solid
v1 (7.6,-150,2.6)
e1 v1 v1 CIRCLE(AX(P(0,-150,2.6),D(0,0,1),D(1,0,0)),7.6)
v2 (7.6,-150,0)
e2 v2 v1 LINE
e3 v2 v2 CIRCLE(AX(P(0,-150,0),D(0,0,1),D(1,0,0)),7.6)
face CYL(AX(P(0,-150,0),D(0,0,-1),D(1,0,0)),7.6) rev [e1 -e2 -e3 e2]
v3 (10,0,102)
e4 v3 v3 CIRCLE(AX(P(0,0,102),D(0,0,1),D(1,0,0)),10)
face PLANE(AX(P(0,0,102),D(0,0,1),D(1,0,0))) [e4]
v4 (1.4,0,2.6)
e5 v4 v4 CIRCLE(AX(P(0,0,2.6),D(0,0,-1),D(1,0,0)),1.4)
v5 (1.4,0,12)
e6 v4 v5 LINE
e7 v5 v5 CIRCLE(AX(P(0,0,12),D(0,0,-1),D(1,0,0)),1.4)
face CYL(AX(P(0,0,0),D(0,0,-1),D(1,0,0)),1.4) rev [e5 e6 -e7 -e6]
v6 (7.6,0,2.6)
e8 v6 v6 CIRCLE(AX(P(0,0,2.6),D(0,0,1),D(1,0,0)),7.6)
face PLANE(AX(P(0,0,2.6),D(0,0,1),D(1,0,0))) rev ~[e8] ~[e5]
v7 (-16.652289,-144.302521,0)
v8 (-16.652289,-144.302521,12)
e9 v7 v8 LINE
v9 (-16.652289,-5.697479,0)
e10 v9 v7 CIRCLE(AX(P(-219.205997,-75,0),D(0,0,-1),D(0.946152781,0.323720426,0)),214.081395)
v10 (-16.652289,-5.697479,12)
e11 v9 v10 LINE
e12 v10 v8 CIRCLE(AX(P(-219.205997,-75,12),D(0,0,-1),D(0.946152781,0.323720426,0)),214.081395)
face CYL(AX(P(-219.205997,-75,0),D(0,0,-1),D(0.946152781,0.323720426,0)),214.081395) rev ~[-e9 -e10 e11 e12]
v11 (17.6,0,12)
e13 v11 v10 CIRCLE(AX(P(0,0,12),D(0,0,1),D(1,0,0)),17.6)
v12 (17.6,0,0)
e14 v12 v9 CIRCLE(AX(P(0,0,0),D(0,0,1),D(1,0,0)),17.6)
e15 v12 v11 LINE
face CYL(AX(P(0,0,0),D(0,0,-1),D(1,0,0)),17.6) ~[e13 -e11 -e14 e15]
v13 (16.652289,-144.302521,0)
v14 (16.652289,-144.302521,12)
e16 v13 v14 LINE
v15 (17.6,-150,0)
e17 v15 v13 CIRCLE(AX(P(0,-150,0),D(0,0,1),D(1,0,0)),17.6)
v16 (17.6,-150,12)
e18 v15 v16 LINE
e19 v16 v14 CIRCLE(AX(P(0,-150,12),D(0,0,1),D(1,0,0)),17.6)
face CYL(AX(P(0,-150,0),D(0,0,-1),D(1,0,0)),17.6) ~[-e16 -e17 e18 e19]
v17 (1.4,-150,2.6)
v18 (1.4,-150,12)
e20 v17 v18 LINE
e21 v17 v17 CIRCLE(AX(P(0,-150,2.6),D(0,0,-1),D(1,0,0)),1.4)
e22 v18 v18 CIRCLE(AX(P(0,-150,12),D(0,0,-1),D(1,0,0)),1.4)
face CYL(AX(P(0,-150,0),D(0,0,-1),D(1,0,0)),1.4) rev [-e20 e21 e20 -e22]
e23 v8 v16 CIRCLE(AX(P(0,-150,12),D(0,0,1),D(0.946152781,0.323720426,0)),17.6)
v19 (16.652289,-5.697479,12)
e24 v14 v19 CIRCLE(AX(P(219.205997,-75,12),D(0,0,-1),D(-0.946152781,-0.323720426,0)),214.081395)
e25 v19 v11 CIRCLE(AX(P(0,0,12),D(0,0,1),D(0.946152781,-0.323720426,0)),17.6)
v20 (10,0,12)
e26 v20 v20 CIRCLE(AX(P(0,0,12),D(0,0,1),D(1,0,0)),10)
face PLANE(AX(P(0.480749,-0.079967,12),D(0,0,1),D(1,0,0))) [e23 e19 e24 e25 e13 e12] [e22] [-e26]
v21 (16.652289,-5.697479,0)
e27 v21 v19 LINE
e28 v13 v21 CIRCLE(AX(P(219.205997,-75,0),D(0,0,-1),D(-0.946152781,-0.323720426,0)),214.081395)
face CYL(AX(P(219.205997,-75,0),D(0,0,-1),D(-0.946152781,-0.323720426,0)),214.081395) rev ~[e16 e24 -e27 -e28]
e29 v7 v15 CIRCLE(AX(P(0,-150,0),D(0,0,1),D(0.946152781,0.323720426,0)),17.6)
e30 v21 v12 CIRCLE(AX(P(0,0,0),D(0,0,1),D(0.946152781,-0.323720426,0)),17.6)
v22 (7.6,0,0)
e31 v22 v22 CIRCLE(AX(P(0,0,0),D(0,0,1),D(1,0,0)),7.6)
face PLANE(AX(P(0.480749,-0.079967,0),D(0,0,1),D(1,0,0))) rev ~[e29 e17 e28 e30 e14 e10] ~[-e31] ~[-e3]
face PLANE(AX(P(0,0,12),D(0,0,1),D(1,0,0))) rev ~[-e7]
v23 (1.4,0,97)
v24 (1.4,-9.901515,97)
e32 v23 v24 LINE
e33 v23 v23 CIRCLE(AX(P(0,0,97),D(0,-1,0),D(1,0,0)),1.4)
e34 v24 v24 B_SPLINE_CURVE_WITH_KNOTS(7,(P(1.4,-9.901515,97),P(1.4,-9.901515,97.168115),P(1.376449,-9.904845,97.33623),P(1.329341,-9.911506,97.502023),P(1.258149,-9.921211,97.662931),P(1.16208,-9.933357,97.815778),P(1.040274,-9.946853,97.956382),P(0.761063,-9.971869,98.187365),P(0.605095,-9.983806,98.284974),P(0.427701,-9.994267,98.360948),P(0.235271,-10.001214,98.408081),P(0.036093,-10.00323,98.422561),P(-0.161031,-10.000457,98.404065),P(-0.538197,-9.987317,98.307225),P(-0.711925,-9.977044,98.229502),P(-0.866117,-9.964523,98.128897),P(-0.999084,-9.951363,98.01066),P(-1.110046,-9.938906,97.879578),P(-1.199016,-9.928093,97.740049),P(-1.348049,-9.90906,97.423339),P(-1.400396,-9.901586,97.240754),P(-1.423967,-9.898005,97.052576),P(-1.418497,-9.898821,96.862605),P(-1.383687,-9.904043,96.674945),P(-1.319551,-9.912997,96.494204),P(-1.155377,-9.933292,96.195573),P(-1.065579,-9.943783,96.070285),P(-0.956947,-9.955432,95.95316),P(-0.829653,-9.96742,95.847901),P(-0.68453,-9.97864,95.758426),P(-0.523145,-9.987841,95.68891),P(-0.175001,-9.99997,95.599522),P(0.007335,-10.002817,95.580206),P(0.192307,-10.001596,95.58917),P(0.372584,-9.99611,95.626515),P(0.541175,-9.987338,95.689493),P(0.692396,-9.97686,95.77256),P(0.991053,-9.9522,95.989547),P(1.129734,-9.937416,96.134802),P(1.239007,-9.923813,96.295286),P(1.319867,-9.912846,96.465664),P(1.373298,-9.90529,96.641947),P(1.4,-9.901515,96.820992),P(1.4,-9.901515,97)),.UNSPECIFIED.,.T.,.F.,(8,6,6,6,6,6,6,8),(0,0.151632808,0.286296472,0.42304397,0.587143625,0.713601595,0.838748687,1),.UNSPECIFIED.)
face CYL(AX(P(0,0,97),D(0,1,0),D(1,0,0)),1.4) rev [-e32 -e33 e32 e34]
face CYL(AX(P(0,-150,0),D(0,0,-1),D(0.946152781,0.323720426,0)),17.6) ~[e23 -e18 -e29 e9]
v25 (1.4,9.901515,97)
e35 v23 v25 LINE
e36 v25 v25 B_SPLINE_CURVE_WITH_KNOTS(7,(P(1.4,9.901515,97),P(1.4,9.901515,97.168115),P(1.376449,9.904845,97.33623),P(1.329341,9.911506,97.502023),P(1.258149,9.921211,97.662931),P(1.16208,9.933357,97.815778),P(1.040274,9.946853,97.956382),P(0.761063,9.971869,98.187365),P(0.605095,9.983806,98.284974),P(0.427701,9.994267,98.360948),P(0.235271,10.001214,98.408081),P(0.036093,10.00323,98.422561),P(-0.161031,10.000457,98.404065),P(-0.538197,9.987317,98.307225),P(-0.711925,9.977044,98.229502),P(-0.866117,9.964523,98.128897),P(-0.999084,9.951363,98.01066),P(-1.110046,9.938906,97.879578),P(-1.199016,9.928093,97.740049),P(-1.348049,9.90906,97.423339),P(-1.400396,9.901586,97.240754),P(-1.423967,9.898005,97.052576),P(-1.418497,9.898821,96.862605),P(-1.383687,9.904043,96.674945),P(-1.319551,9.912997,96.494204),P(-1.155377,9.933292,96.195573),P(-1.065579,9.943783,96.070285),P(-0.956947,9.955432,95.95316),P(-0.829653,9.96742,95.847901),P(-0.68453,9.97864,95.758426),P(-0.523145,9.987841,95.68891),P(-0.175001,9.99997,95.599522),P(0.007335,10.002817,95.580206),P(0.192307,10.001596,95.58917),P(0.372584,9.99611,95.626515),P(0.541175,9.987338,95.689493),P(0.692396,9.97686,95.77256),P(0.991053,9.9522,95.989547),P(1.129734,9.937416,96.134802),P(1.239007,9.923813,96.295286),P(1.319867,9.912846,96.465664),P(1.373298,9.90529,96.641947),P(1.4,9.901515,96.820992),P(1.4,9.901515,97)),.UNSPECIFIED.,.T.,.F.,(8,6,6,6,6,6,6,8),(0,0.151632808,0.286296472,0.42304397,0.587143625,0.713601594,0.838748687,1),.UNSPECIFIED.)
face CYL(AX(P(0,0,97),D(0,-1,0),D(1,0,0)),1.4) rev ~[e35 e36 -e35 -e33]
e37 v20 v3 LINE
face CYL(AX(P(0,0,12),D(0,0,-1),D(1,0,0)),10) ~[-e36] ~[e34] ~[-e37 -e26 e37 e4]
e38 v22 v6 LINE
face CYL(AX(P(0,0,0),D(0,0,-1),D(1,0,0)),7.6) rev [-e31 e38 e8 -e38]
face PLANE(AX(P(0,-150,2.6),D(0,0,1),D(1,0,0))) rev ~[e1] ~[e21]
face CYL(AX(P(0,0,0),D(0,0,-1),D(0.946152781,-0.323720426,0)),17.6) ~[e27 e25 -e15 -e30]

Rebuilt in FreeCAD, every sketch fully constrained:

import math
import FreeCAD as App
import Part
import Sketcher
from FreeCAD import Vector
Q = App.Units.Quantity

doc = App.newDocument("Part")
params = doc.addObject("Spreadsheet::Sheet", "Params")
for row, (alias, value) in enumerate([
    ("sketch1_radius", "17.6 mm"),
    ("pad1_length", "12 mm"),
    ("sketch2_diameter", "15.2 mm"),
    ("pocket1_length", "2.6 mm"),
    ("sketch3_diameter", "2.8 mm"),
    ("sketch4_diameter", "20 mm"),
    ("pad2_length", "90 mm"),
    ("sketch5_diameter", "2.8 mm"),
], start=1):
    params.set(f"A{row}", alias)
    params.set(f"B{row}", "=" + value)
    params.setAlias(f"B{row}", alias)

body = doc.addObject("PartDesign::Body", "Body")

sketch1 = doc.addObject("Sketcher::SketchObject", "Sketch")
body.addObject(sketch1)
sketch1.AttachmentSupport = (doc.XY_Plane, [""])
sketch1.MapMode = "FlatFace"
sketch1.addGeometry(Part.ArcOfCircle(Part.Circle(Vector(0, 0, 0), Vector(0, 0, 1), 17.6), math.radians(-18.88807), math.radians(0)), False)
sketch1.addGeometry(Part.ArcOfCircle(Part.Circle(Vector(0, 0, 0), Vector(0, 0, 1), 17.6), math.radians(0), math.radians(198.88807)), False)
sketch1.addGeometry(Part.ArcOfCircle(Part.Circle(Vector(-219.205997, -75, 0), Vector(0, 0, 1), 214.081395), math.radians(-18.88807), math.radians(18.88807)), False)
sketch1.addGeometry(Part.ArcOfCircle(Part.Circle(Vector(0, -150, 0), Vector(0, 0, 1), 17.6), math.radians(161.11193), math.radians(360)), False)
sketch1.addGeometry(Part.ArcOfCircle(Part.Circle(Vector(0, -150, 0), Vector(0, 0, 1), 17.6), math.radians(0), math.radians(18.88807)), False)
sketch1.addGeometry(Part.ArcOfCircle(Part.Circle(Vector(219.205997, -75, 0), Vector(0, 0, 1), 214.081395), math.radians(161.11193), math.radians(198.88807)), False)
sketch1.addConstraint(Sketcher.Constraint("Tangent", 0, 2, 1, 1))
sketch1.addConstraint(Sketcher.Constraint("Tangent", 1, 2, 2, 2))
sketch1.addConstraint(Sketcher.Constraint("Tangent", 2, 1, 3, 1))
sketch1.addConstraint(Sketcher.Constraint("Tangent", 3, 2, 4, 1))
sketch1.addConstraint(Sketcher.Constraint("Tangent", 4, 2, 5, 2))
sketch1.addConstraint(Sketcher.Constraint("Tangent", 5, 1, 0, 1))
sketch1.addConstraint(Sketcher.Constraint("Coincident", 0, 3, -1, 1))
sketch1.addConstraint(Sketcher.Constraint("Equal", 0, 1))
sketch1.addConstraint(Sketcher.Constraint("Equal", 1, 3))
sketch1.addConstraint(Sketcher.Constraint("Equal", 3, 4))
sketch1.addConstraint(Sketcher.Constraint("Equal", 2, 5))
sketch1.addConstraint(Sketcher.Constraint("PointOnObject", 3, 3, -2))
sketch1.addConstraint(Sketcher.Constraint("PointOnObject", 0, 2, -1))
sketch1.addConstraint(Sketcher.Constraint("Horizontal", 4, 3, 3, 2))
sketch1.addConstraint(Sketcher.Constraint("Radius", 0, Q("17.6 mm")))
sketch1.addConstraint(Sketcher.Constraint("DistanceY", 2, 3, -1, 1, Q("75 mm")))
sketch1.addConstraint(Sketcher.Constraint("Radius", 2, Q("214.081395 mm")))
sketch1.setExpression("Constraints[14]", "Params.sketch1_radius")
pad1 = doc.addObject("PartDesign::Pad", "Pad")
body.addObject(pad1)
pad1.Profile = sketch1
pad1.setExpression("Length", "Params.pad1_length")

sketch2 = doc.addObject("Sketcher::SketchObject", "Sketch001")
body.addObject(sketch2)
sketch2.AttachmentSupport = (doc.XY_Plane, [""])
sketch2.MapMode = "FlatFace"
sketch2.addGeometry(Part.Circle(Vector(0, 0, 0), Vector(0, 0, 1), 7.6), False)
sketch2.addGeometry(Part.Circle(Vector(0, -150, 0), Vector(0, 0, 1), 7.6), False)
sketch2.addConstraint(Sketcher.Constraint("Coincident", 0, 3, -1, 1))
sketch2.addConstraint(Sketcher.Constraint("Equal", 0, 1))
sketch2.addConstraint(Sketcher.Constraint("PointOnObject", 1, 3, -2))
sketch2.addConstraint(Sketcher.Constraint("Diameter", 0, Q("15.2 mm")))
sketch2.addConstraint(Sketcher.Constraint("DistanceY", 1, 3, -1, 1, Q("150 mm")))
sketch2.setExpression("Constraints[3]", "Params.sketch2_diameter")
pocket1 = doc.addObject("PartDesign::Pocket", "Pocket")
body.addObject(pocket1)
pocket1.Profile = sketch2
pocket1.setExpression("Length", "Params.pocket1_length")
pocket1.Reversed = True

sketch3 = doc.addObject("Sketcher::SketchObject", "Sketch002")
body.addObject(sketch3)
sketch3.AttachmentSupport = (doc.XY_Plane, [""])
sketch3.MapMode = "FlatFace"
sketch3.addGeometry(Part.Circle(Vector(0, -150, 0), Vector(0, 0, 1), 1.4), False)
sketch3.addGeometry(Part.Circle(Vector(0, 0, 0), Vector(0, 0, 1), 1.4), False)
sketch3.addConstraint(Sketcher.Constraint("Coincident", 1, 3, -1, 1))
sketch3.addConstraint(Sketcher.Constraint("Equal", 0, 1))
sketch3.addConstraint(Sketcher.Constraint("PointOnObject", 0, 3, -2))
sketch3.addConstraint(Sketcher.Constraint("Diameter", 0, Q("2.8 mm")))
sketch3.addConstraint(Sketcher.Constraint("DistanceY", 0, 3, -1, 1, Q("150 mm")))
sketch3.setExpression("Constraints[3]", "Params.sketch3_diameter")
pocket2 = doc.addObject("PartDesign::Pocket", "Pocket001")
body.addObject(pocket2)
pocket2.Profile = sketch3
pocket2.Type = "ThroughAll"
pocket2.Reversed = True

sketch4 = doc.addObject("Sketcher::SketchObject", "Sketch003")
body.addObject(sketch4)
sketch4.AttachmentSupport = (doc.XY_Plane, [""])
sketch4.MapMode = "FlatFace"
sketch4.AttachmentOffset = App.Placement(Vector(0, 0, 12), App.Rotation())
sketch4.addGeometry(Part.Circle(Vector(0, 0, 0), Vector(0, 0, 1), 10), False)
sketch4.addConstraint(Sketcher.Constraint("Coincident", 0, 3, -1, 1))
sketch4.addConstraint(Sketcher.Constraint("Diameter", 0, Q("20 mm")))
sketch4.setExpression("Constraints[1]", "Params.sketch4_diameter")
pad2 = doc.addObject("PartDesign::Pad", "Pad001")
body.addObject(pad2)
pad2.Profile = sketch4
pad2.setExpression("Length", "Params.pad2_length")

sketch5 = doc.addObject("Sketcher::SketchObject", "Sketch004")
body.addObject(sketch5)
sketch5.AttachmentSupport = (doc.XZ_Plane, [""])
sketch5.MapMode = "FlatFace"
sketch5.addGeometry(Part.Circle(Vector(0, 97, 0), Vector(0, 0, 1), 1.4), False)
sketch5.addConstraint(Sketcher.Constraint("PointOnObject", 0, 3, -2))
sketch5.addConstraint(Sketcher.Constraint("Diameter", 0, Q("2.8 mm")))
sketch5.addConstraint(Sketcher.Constraint("DistanceY", -1, 1, 0, 3, Q("97 mm")))
sketch5.setExpression("Constraints[1]", "Params.sketch5_diameter")
pocket3 = doc.addObject("PartDesign::Pocket", "Pocket002")
body.addObject(pocket3)
pocket3.Profile = sketch5
pocket3.Type = "ThroughAll"
pocket3.Midplane = True

doc.recompute()
